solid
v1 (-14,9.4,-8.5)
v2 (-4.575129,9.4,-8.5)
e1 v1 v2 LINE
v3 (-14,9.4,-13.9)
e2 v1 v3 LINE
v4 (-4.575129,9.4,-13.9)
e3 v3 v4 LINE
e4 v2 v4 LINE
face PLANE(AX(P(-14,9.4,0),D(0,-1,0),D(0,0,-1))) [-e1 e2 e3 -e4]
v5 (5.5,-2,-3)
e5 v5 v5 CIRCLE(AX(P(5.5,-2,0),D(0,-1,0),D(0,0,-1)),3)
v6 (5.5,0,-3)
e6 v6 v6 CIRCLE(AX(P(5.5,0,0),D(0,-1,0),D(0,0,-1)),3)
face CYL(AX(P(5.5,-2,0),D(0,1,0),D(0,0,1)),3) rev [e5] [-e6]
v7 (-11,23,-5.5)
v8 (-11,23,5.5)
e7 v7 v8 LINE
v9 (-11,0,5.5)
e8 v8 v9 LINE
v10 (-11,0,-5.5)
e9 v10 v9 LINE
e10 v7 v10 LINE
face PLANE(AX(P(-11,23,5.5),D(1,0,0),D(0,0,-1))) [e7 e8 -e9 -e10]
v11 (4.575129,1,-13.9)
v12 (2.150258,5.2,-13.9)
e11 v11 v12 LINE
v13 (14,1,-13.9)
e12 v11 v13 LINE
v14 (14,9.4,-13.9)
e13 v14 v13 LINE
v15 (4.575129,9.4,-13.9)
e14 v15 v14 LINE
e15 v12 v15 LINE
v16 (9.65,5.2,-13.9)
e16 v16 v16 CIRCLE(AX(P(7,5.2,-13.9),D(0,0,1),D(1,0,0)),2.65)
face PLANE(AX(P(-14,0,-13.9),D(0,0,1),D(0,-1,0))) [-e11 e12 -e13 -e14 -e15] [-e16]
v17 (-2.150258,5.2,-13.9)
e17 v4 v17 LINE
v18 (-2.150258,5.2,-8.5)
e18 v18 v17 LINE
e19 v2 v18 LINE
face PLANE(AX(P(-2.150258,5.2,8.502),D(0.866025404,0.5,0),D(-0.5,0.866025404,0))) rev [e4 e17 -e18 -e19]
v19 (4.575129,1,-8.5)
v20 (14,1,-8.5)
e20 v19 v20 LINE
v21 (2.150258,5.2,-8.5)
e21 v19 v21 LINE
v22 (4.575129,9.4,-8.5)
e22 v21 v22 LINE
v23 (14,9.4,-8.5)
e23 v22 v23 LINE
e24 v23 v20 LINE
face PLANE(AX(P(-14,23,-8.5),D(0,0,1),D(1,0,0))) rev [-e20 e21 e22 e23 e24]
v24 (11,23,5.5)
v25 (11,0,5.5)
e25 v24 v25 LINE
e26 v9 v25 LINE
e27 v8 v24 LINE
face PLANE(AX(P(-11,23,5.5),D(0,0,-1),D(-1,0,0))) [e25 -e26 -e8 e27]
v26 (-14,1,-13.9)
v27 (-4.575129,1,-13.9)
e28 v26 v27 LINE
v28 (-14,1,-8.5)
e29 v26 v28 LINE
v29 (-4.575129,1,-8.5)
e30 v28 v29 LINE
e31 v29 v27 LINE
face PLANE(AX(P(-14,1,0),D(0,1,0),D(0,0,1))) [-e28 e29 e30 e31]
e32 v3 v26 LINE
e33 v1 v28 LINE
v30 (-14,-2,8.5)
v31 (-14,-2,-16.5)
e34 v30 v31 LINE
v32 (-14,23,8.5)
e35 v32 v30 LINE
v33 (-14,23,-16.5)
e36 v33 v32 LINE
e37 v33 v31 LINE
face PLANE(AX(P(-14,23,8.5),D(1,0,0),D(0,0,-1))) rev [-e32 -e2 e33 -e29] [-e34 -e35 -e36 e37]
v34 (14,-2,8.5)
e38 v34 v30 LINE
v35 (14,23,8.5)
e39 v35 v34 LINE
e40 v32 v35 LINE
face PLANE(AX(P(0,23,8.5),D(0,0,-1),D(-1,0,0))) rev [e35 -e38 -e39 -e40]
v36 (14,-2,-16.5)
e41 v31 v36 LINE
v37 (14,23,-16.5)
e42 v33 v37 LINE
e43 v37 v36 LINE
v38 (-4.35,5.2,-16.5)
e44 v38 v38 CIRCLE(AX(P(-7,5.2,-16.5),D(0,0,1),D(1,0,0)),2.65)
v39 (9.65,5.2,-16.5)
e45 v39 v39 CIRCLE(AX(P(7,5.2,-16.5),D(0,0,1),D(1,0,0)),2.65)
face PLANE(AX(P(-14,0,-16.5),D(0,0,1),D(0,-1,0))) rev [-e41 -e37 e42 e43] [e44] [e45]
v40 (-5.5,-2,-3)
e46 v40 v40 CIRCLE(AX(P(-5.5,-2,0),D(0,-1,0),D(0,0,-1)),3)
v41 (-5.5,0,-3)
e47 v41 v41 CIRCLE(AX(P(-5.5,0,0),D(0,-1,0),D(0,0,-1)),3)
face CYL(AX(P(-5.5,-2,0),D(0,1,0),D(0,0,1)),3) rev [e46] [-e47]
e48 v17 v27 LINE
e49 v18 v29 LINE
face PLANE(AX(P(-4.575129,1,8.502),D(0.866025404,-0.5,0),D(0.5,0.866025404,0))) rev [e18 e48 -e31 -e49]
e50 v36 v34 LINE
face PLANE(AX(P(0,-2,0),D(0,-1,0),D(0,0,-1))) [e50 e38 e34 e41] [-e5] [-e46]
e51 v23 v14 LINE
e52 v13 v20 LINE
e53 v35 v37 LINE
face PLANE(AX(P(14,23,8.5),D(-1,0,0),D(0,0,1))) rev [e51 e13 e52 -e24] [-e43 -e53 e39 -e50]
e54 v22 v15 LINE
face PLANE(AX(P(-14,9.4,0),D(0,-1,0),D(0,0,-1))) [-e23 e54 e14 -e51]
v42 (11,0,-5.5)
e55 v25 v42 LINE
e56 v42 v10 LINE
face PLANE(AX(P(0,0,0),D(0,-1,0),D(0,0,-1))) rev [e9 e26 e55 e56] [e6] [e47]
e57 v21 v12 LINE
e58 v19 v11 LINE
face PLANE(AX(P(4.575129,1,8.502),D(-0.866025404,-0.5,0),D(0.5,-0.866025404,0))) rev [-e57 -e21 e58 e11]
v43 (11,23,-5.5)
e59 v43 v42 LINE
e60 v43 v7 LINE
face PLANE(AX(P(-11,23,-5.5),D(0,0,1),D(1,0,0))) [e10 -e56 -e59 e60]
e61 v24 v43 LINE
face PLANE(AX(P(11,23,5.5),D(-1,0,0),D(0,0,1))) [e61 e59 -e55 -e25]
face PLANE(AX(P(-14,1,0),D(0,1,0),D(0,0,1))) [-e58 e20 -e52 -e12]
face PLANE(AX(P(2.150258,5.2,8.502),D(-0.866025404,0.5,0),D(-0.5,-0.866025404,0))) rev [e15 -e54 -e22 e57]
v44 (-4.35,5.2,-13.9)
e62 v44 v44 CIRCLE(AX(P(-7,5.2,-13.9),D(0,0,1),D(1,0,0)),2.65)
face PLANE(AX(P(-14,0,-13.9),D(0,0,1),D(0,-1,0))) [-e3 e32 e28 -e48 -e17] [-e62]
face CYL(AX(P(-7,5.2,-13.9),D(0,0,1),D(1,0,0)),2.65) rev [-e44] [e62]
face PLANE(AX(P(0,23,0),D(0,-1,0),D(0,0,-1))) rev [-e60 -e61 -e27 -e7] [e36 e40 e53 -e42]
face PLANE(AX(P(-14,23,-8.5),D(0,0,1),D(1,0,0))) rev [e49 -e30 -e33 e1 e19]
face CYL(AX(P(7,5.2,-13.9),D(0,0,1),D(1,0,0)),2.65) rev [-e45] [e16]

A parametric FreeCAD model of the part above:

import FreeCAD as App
import Part
import Sketcher
from FreeCAD import Vector
Q = App.Units.Quantity


def add_polygon(sketch, points):
    """Adds a closed chain of lines whose ends are joined by coincident constraints."""
    first, n = sketch.GeometryCount, len(points)
    for a, b in zip(points, points[1:] + points[:1]):
        sketch.addGeometry(Part.LineSegment(App.Vector(*a, 0), App.Vector(*b, 0)), False)
    for i in range(n):
        sketch.addConstraint(Sketcher.Constraint("Coincident", first + i, 2, first + (i + 1) % n, 1))

doc = App.newDocument("Part")
body = doc.addObject("PartDesign::Body", "Body")

sketch1 = doc.addObject("Sketcher::SketchObject", "Sketch")
body.addObject(sketch1)
sketch1.AttachmentSupport = (doc.XZ_Plane, [""])
sketch1.MapMode = "FlatFace"
add_polygon(sketch1, [(14, -8), (-14, -8), (-14, 8), (14, 8)])
add_polygon(sketch1, [(-11, 6), (-11, -6), (11, -6), (11, 6)])
sketch1.addConstraint([
    Sketcher.Constraint("Horizontal", 0),
    Sketcher.Constraint("Vertical", 1),
    Sketcher.Constraint("Horizontal", 2),
    Sketcher.Constraint("Vertical", 3),
    Sketcher.Constraint("Vertical", 4),
    Sketcher.Constraint("Horizontal", 5),
    Sketcher.Constraint("Vertical", 6),
    Sketcher.Constraint("Horizontal", 7),
    Sketcher.Constraint("Symmetric", 0, 2, 2, 2, -1, 1),
    Sketcher.Constraint("Symmetric", 4, 2, 6, 2, -1, 1),
    Sketcher.Constraint("DistanceX", 0, 2, 0, 1, Q("28 mm")),
    Sketcher.Constraint("DistanceX", 5, 1, 5, 2, Q("22 mm")),
    Sketcher.Constraint("DistanceY", 1, 1, 1, 2, Q("17 mm")),
    Sketcher.Constraint("DistanceY", 4, 2, 4, 1, Q("11 mm")),
])
pad1 = doc.addObject("PartDesign::Pad", "Pad")
body.addObject(pad1)
pad1.Profile = sketch1
pad1.Length = 23
pad1.Reversed = True

sketch2 = doc.addObject("Sketcher::SketchObject", "Sketch001")
body.addObject(sketch2)
sketch2.AttachmentSupport = (doc.XZ_Plane, [""])
sketch2.MapMode = "FlatFace"
add_polygon(sketch2, [(-14, 8.5), (-14, -8.5), (14, -8.5), (14, 8.5)])
sketch2.addGeometry(Part.Circle(Vector(-5.5, 0, 0), Vector(0, 0, 1), 3), False)
sketch2.addGeometry(Part.Circle(Vector(5.5, 0, 0), Vector(0, 0, 1), 3), False)
sketch2.addConstraint([
    Sketcher.Constraint("Vertical", 0),
    Sketcher.Constraint("Horizontal", 1),
    Sketcher.Constraint("Vertical", 2),
    Sketcher.Constraint("Horizontal", 3),
    Sketcher.Constraint("Equal", 4, 5),
    Sketcher.Constraint("Symmetric", 4, 3, 5, 3, -1, 1),
    Sketcher.Constraint("Symmetric", 0, 2, 2, 2, -1, 1),
    Sketcher.Constraint("PointOnObject", 4, 3, -1),
    Sketcher.Constraint("Diameter", 4, Q("6 mm")),
    Sketcher.Constraint("DistanceX", 1, 1, 1, 2, Q("28 mm")),
    Sketcher.Constraint("DistanceY", 0, 2, 0, 1, Q("17 mm")),
    Sketcher.Constraint("DistanceX", 4, 3, 5, 3, Q("11 mm")),
])
pad2 = doc.addObject("PartDesign::Pad", "Pad001")
body.addObject(pad2)
pad2.Profile = sketch2
pad2.Length = 2

sketch3 = doc.addObject("Sketcher::SketchObject", "Sketch002")
body.addObject(sketch3)
sketch3.AttachmentSupport = (doc.YZ_Plane, [""])
sketch3.MapMode = "FlatFace"
sketch3.AttachmentOffset = App.Placement(Vector(0, 0, 14), App.Rotation())
add_polygon(sketch3, [(23, -16.5), (23, -8.5), (9.4, -8.5), (9.4, -13.9), (1, -13.9), (1, -8.5), (-2, -8.5), (-2, -16.5)])
sketch3.addConstraint([
    Sketcher.Constraint("Vertical", 0),
    Sketcher.Constraint("Horizontal", 1),
    Sketcher.Constraint("Vertical", 2),
    Sketcher.Constraint("Horizontal", 3),
    Sketcher.Constraint("Vertical", 4),
    Sketcher.Constraint("Horizontal", 5),
    Sketcher.Constraint("Vertical", 6),
    Sketcher.Constraint("Horizontal", 7),
    Sketcher.Constraint("Horizontal", 1, 2, 4, 2),
    Sketcher.Constraint("DistanceX", 5, 2, 5, 1, Q("3 mm")),
    Sketcher.Constraint("DistanceX", 7, 1, 7, 2, Q("25 mm")),
    Sketcher.Constraint("DistanceY", 0, 1, 0, 2, Q("8 mm")),
    Sketcher.Constraint("DistanceX", 1, 2, 1, 1, Q("13.6 mm")),
    Sketcher.Constraint("DistanceY", 2, 2, 2, 1, Q("5.4 mm")),
    Sketcher.Constraint("DistanceX", -1, 1, 0, 2, Q("23 mm")),
    Sketcher.Constraint("DistanceY", 0, 2, -1, 1, Q("8.5 mm")),
])
pad3 = doc.addObject("PartDesign::Pad", "Pad002")
body.addObject(pad3)
pad3.Profile = sketch3
pad3.Length = 28
pad3.Reversed = True

sketch4 = doc.addObject("Sketcher::SketchObject", "Sketch003")
body.addObject(sketch4)
sketch4.AttachmentSupport = (doc.XY_Plane, [""])
sketch4.MapMode = "FlatFace"
sketch4.AttachmentOffset = App.Placement(Vector(0, 0, -13.9), App.Rotation())
add_polygon(sketch4, [(4.6, 1), (2.2, 5.2), (4.6, 9.4), (-4.6, 9.4), (-2.2, 5.2), (-4.6, 1)])
sketch4.addConstraint([
    Sketcher.Constraint("Horizontal", 2),
    Sketcher.Constraint("Horizontal", 5),
    Sketcher.Constraint("Symmetric", 0, 2, 3, 2, -2),
    Sketcher.Constraint("Parallel", 0, 3),
    Sketcher.Constraint("Parallel", 1, 4),
    Sketcher.Constraint("Vertical", 2, 2, 4, 2),
    Sketcher.Constraint("Vertical", 1, 2, 5, 2),
    Sketcher.Constraint("Angle", 0, Q("120 deg")),
    Sketcher.Constraint("DistanceY", -1, 1, 4, 2, Q("1 mm")),
    Sketcher.Constraint("DistanceY", -1, 1, 0, 2, Q("5.2 mm")),
    Sketcher.Constraint("DistanceX", 2, 2, 2, 1, Q("9.150258 mm")),
])
pad4 = doc.addObject("PartDesign::Pad", "Pad003")
body.addObject(pad4)
pad4.Profile = sketch4
pad4.Type = "UpToFirst"

sketch5 = doc.addObject("Sketcher::SketchObject", "Sketch004")
body.addObject(sketch5)
sketch5.AttachmentSupport = (doc.XY_Plane, [""])
sketch5.MapMode = "FlatFace"
sketch5.AttachmentOffset = App.Placement(Vector(0, 0, -13.9), App.Rotation())
sketch5.addGeometry([
    Part.Circle(Vector(-7, 5.2, 0), Vector(0, 0, 1), 2.6),
    Part.Circle(Vector(7, 5.2, 0), Vector(0, 0, 1), 2.6),
], False)
sketch5.addConstraint([
    Sketcher.Constraint("Equal", 0, 1),
    Sketcher.Constraint("Symmetric", 0, 3, 1, 3, -2),
    Sketcher.Constraint("Diameter", 0, Q("5.3 mm")),
    Sketcher.Constraint("DistanceX", 0, 3, -1, 1, Q("7 mm")),
    Sketcher.Constraint("DistanceY", -1, 1, 0, 3, Q("5.2 mm")),
])
doc.recompute()
hole = doc.addObject("PartDesign::Hole", "Hole")
body.addObject(hole)
hole.Profile = sketch5
hole.ThreadType = "None"
hole.Diameter = 5.3
hole.DepthType = "Dimension"
hole.Depth = 2.6
hole.DrillPoint = "Flat"

doc.recompute()
